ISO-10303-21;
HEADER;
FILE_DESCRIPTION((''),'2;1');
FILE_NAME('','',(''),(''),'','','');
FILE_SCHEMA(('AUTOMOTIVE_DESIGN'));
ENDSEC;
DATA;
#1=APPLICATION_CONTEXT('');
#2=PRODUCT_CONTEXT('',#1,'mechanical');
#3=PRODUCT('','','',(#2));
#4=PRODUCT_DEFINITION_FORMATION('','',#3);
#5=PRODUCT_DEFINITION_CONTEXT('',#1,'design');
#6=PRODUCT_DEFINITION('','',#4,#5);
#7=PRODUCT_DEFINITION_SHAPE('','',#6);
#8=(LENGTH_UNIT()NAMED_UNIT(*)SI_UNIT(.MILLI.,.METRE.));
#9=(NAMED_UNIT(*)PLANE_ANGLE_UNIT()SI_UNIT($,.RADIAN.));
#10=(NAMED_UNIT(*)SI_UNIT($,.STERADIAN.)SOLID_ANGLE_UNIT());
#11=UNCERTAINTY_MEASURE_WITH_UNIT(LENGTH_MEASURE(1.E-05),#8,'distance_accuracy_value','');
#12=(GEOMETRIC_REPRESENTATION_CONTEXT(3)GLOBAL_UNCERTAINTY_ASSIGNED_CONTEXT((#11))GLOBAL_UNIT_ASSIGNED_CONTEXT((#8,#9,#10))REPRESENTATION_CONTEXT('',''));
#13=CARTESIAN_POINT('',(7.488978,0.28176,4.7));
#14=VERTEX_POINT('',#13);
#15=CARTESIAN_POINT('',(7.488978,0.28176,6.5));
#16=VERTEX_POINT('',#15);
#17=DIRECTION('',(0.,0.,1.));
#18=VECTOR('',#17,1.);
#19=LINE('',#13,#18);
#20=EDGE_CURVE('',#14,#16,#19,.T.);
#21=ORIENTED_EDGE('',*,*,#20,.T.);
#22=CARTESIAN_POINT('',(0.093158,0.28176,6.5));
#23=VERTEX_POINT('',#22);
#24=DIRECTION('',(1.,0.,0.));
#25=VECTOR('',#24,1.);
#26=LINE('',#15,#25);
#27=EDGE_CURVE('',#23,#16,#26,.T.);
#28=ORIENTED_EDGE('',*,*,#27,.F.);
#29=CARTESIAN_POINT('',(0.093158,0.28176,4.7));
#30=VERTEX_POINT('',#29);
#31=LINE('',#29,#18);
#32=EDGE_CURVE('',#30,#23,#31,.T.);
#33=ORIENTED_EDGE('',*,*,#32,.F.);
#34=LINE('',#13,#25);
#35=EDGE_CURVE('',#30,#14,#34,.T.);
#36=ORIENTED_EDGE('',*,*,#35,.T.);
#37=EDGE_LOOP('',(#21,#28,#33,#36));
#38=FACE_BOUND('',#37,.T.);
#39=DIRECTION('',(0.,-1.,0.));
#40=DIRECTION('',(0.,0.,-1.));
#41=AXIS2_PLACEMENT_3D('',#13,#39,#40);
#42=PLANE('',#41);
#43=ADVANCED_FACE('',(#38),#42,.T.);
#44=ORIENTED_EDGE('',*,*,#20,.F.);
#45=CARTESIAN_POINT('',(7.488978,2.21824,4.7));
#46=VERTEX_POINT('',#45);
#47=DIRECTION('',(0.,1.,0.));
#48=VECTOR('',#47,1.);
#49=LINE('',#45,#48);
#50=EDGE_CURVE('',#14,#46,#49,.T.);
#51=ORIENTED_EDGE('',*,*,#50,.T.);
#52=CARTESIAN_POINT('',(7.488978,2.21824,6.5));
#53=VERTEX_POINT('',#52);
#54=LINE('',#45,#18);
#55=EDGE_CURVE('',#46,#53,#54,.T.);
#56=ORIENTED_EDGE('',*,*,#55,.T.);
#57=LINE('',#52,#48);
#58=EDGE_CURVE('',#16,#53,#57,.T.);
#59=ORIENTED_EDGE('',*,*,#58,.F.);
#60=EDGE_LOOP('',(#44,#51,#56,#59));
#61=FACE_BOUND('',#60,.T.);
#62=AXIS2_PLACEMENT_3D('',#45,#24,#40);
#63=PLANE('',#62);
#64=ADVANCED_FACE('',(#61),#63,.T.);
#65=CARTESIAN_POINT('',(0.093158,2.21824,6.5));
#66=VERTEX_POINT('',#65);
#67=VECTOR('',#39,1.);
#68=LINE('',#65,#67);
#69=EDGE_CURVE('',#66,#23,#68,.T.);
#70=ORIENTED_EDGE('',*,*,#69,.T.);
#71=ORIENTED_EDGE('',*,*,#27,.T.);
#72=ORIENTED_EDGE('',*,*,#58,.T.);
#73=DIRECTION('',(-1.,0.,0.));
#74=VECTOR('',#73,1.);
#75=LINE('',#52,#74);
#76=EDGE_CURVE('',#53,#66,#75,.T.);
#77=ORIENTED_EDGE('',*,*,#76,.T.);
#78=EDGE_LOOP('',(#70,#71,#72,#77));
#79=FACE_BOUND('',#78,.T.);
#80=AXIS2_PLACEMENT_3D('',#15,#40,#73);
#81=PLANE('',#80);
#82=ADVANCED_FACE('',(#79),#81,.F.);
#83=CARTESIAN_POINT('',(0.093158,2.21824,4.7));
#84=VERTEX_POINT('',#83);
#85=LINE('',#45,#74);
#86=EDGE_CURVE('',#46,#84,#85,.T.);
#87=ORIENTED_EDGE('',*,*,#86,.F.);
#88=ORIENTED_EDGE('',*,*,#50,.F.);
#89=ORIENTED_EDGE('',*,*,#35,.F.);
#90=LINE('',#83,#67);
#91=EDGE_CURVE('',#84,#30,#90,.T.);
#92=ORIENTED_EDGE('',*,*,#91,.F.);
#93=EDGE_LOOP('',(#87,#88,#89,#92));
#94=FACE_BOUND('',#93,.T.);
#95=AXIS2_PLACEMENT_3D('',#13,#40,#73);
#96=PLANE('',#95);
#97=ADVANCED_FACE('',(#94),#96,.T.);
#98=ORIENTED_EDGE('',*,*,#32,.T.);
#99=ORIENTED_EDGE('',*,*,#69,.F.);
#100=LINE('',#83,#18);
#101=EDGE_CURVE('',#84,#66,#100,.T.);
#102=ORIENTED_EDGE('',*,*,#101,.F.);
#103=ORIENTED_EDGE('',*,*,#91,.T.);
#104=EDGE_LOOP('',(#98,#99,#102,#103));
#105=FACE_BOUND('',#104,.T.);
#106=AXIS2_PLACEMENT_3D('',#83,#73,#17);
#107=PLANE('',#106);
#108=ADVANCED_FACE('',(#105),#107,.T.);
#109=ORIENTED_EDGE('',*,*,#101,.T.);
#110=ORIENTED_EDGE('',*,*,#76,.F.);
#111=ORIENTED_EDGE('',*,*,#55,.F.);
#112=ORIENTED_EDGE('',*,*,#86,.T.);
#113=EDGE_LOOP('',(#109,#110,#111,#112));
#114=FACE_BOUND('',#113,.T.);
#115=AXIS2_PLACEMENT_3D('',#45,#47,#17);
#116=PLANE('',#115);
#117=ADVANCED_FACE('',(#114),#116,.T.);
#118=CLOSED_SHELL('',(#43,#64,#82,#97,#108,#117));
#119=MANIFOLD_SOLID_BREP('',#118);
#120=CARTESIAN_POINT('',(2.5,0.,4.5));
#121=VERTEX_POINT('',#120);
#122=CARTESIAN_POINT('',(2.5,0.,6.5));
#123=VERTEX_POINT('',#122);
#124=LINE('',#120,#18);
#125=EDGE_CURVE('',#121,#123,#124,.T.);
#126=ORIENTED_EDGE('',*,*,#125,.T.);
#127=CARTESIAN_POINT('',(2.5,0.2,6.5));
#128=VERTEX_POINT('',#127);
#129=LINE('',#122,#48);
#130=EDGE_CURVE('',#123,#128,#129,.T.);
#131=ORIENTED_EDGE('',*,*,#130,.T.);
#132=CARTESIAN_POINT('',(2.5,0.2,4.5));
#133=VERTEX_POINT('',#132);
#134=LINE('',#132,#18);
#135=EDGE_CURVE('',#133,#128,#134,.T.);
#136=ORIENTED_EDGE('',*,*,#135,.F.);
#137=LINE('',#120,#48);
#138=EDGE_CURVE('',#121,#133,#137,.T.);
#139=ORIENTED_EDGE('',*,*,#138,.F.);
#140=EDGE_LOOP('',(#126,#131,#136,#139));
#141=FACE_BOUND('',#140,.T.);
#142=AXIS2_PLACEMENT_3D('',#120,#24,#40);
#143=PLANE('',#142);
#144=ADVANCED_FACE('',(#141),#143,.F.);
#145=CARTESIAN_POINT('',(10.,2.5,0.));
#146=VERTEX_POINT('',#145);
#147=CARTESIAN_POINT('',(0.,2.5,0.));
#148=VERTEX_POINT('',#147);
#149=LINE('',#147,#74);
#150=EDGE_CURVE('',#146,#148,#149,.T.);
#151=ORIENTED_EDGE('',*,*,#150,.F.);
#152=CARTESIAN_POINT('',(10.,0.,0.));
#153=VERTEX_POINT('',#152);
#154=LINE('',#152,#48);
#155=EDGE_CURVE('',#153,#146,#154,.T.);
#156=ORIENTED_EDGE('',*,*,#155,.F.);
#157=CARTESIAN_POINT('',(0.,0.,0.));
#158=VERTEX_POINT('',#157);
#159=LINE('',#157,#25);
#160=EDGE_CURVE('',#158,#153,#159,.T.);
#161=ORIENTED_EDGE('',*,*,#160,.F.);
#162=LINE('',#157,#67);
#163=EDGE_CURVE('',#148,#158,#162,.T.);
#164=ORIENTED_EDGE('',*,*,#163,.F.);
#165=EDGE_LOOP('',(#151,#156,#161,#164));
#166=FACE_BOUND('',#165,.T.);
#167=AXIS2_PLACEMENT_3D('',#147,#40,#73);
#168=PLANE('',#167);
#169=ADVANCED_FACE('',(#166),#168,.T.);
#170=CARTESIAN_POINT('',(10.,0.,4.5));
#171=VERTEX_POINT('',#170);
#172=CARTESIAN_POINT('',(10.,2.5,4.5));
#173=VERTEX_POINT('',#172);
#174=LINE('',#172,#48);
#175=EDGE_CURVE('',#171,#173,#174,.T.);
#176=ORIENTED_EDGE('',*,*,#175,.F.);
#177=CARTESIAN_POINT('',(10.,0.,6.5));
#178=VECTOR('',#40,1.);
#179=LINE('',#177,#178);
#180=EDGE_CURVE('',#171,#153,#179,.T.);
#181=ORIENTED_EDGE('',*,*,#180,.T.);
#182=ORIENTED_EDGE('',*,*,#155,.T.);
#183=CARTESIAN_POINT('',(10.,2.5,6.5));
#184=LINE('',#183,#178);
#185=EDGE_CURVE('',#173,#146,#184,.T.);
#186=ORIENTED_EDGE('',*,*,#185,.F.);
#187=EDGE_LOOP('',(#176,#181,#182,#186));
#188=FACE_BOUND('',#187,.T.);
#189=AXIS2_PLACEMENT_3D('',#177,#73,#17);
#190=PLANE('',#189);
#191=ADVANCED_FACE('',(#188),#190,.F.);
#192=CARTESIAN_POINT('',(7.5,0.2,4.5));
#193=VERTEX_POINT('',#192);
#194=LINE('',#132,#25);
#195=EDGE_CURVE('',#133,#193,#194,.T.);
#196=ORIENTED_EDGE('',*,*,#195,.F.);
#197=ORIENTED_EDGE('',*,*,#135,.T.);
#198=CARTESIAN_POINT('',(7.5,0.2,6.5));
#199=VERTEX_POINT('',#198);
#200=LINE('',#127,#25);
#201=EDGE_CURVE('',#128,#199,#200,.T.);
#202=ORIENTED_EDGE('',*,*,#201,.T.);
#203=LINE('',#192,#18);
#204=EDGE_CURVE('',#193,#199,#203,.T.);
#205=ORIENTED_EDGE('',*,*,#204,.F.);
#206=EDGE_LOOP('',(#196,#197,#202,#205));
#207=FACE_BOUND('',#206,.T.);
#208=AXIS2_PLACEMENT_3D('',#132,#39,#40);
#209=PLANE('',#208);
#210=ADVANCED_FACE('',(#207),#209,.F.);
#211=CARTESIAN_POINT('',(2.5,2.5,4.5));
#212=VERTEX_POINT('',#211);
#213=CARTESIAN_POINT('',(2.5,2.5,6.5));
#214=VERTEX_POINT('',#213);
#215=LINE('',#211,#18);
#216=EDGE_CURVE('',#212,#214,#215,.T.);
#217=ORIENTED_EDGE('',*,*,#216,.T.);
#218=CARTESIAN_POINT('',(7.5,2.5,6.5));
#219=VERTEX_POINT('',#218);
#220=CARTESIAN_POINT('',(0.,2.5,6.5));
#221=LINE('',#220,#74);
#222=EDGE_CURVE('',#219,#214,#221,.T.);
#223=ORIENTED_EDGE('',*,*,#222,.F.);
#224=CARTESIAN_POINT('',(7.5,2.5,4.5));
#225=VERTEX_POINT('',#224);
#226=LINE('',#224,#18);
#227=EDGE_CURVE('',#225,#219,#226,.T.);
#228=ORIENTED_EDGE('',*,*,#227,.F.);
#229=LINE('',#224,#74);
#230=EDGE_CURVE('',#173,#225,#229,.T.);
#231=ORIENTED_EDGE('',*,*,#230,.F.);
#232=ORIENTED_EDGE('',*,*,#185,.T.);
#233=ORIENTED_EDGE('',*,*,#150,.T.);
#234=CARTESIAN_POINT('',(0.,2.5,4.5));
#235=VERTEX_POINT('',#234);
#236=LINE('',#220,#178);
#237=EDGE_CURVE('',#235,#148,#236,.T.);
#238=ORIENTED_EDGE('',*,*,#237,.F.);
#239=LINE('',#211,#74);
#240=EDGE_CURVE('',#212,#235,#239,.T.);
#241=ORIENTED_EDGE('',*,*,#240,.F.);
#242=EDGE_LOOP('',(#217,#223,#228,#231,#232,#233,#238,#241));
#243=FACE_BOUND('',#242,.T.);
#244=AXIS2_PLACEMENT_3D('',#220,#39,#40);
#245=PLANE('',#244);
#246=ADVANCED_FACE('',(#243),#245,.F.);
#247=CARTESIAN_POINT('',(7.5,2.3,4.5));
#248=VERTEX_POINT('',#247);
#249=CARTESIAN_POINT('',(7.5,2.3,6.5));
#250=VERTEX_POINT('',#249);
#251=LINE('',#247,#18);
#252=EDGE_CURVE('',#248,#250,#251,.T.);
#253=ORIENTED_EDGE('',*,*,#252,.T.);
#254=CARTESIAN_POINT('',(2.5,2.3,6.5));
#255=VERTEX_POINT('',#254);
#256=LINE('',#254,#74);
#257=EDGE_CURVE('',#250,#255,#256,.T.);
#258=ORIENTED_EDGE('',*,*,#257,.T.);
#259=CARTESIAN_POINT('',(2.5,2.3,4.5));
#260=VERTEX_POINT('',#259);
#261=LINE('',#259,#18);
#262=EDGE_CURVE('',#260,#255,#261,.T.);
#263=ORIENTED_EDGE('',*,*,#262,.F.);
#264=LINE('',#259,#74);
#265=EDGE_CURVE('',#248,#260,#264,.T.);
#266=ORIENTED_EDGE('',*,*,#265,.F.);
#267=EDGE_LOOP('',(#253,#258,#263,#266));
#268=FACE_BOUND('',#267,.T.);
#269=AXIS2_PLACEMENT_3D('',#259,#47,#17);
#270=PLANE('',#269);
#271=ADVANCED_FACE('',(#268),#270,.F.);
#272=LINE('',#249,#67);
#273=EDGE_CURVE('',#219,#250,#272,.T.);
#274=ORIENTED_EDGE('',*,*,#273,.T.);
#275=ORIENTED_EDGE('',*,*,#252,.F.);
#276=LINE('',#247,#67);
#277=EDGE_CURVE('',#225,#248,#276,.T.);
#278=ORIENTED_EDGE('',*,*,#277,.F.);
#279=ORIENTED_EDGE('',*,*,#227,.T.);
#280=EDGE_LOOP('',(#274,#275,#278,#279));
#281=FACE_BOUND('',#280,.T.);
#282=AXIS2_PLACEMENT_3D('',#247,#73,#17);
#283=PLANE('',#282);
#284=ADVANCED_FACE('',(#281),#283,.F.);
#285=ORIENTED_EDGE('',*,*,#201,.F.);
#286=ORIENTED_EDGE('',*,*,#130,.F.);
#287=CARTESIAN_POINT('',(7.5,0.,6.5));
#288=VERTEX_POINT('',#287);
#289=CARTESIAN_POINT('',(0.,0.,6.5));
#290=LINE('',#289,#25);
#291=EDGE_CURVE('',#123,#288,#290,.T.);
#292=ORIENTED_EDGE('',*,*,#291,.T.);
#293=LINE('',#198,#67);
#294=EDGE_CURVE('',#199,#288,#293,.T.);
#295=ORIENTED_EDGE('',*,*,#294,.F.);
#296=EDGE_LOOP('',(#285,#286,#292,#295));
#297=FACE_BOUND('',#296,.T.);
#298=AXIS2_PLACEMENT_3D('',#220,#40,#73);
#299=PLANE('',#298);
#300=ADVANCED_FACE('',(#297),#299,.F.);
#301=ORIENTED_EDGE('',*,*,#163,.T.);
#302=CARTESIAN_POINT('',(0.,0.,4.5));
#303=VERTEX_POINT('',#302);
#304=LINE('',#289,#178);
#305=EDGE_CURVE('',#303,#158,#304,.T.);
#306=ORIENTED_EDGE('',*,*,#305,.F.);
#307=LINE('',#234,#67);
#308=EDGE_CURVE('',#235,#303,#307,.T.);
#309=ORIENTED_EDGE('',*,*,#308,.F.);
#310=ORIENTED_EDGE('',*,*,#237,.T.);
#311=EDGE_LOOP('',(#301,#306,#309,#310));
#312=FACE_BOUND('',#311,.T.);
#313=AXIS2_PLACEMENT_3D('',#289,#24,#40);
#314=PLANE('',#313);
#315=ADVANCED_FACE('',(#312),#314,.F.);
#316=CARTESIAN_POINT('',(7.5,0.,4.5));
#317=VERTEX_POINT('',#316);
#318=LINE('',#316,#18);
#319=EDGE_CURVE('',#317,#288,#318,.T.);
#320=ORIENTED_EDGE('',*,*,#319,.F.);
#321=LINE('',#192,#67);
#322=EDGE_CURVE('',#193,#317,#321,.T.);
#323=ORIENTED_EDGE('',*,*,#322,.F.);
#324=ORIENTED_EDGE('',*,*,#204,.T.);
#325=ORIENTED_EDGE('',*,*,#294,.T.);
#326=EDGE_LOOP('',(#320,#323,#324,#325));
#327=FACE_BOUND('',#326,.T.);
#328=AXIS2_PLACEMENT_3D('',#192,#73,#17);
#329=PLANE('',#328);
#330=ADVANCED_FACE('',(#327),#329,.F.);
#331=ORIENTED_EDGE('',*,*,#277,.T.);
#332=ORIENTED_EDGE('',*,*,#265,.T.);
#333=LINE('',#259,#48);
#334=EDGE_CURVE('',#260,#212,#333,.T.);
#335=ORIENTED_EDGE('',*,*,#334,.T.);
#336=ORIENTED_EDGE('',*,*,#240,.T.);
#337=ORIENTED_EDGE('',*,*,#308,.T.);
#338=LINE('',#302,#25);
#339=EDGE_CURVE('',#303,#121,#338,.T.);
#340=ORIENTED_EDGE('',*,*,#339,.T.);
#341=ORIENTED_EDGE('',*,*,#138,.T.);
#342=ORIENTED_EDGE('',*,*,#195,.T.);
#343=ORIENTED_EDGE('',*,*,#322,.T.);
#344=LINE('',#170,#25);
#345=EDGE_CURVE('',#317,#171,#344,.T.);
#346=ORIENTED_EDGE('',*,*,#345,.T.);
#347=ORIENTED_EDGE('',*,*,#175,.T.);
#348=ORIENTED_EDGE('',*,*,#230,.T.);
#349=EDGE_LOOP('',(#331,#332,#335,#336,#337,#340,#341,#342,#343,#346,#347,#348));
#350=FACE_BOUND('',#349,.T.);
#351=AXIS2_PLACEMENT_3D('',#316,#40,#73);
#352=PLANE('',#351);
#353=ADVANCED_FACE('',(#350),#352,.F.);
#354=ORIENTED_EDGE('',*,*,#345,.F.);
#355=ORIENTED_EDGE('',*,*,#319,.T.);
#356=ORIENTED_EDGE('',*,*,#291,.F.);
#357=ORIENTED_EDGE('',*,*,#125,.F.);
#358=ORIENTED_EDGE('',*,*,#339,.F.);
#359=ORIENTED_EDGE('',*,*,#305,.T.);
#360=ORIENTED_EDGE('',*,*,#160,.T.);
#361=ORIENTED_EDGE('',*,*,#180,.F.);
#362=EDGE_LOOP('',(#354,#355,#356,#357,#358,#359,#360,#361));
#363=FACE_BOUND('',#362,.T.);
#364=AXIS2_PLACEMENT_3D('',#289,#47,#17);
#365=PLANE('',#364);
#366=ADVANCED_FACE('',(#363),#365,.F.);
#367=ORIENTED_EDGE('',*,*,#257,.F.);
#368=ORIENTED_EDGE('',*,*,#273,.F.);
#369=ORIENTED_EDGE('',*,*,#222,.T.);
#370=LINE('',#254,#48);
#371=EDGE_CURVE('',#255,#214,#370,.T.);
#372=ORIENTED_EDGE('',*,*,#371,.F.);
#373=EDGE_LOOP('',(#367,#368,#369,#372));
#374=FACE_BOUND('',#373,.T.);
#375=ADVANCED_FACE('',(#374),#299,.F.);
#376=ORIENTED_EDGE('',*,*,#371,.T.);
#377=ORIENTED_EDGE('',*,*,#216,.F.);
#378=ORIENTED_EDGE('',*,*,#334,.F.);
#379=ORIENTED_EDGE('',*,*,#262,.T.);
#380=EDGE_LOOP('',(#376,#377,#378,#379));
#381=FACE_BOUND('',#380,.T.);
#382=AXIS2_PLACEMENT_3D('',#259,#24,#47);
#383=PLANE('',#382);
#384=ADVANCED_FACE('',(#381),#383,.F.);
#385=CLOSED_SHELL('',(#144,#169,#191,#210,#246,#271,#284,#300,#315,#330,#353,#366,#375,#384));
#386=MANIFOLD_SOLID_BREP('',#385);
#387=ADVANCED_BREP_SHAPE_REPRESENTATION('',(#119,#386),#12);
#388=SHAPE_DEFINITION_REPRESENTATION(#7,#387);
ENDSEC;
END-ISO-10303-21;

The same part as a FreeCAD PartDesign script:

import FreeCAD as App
import Part
import Sketcher

V = App.Vector
Q = App.Units.Quantity

doc = App.newDocument("Part")
body = doc.addObject("PartDesign::Body", "Body")

sketch1 = body.newObject("Sketcher::SketchObject", "Sketch")
sketch1.AttachmentSupport = (doc.getObject("XY_Plane"), [""])
sketch1.MapMode = "FlatFace"
sketch1.addGeometry([
    Part.LineSegment(V(0, 2.5, 0), V(0, 0, 0)),
    Part.LineSegment(V(0, 0, 0), V(10, 0, 0)),
    Part.LineSegment(V(10, 0, 0), V(10, 2.5, 0)),
    Part.LineSegment(V(10, 2.5, 0), V(0, 2.5, 0)),
], False)
sketch1.addConstraint([
    Sketcher.Constraint("Coincident", 0, 2, 1, 1),
    Sketcher.Constraint("Coincident", 1, 2, 2, 1),
    Sketcher.Constraint("Coincident", 2, 2, 3, 1),
    Sketcher.Constraint("Coincident", 3, 2, 0, 1),
    Sketcher.Constraint("Vertical", 0),
    Sketcher.Constraint("Horizontal", 1),
    Sketcher.Constraint("Vertical", 2),
    Sketcher.Constraint("Horizontal", 3),
    Sketcher.Constraint("Coincident", 0, 2, -1, 1),
    Sketcher.Constraint("DistanceX", 1, 1, 1, 2, Q("10 mm")),
    Sketcher.Constraint("DistanceY", 0, 2, 0, 1, Q("2.5 mm")),
])
pad1 = body.newObject("PartDesign::Pad", "Pad")
pad1.Profile = sketch1
pad1.Length = 6.5

sketch2 = body.newObject("Sketcher::SketchObject", "Sketch001")
sketch2.AttachmentSupport = (doc.getObject("XY_Plane"), [""])
sketch2.MapMode = "FlatFace"
sketch2.AttachmentOffset = App.Placement(V(0, 0, 6.5), App.Rotation())
sketch2.addGeometry([
    Part.LineSegment(V(7.5, 2.3, 0), V(2.5, 2.3, 0)),
    Part.LineSegment(V(2.5, 2.3, 0), V(2.5, 2.5, 0)),
    Part.LineSegment(V(2.5, 2.5, 0), V(0, 2.5, 0)),
    Part.LineSegment(V(0, 2.5, 0), V(0, 0, 0)),
    Part.LineSegment(V(0, 0, 0), V(2.5, 0, 0)),
    Part.LineSegment(V(2.5, 0, 0), V(2.5, 0.2, 0)),
    Part.LineSegment(V(2.5, 0.2, 0), V(7.5, 0.2, 0)),
    Part.LineSegment(V(7.5, 0.2, 0), V(7.5, 0, 0)),
    Part.LineSegment(V(7.5, 0, 0), V(10, 0, 0)),
    Part.LineSegment(V(10, 0, 0), V(10, 2.5, 0)),
    Part.LineSegment(V(10, 2.5, 0), V(7.5, 2.5, 0)),
    Part.LineSegment(V(7.5, 2.5, 0), V(7.5, 2.3, 0)),
], False)
sketch2.addConstraint([
    Sketcher.Constraint("Coincident", 0, 2, 1, 1),
    Sketcher.Constraint("Coincident", 1, 2, 2, 1),
    Sketcher.Constraint("Coincident", 2, 2, 3, 1),
    Sketcher.Constraint("Coincident", 3, 2, 4, 1),
    Sketcher.Constraint("Coincident", 4, 2, 5, 1),
    Sketcher.Constraint("Coincident", 5, 2, 6, 1),
    Sketcher.Constraint("Coincident", 6, 2, 7, 1),
    Sketcher.Constraint("Coincident", 7, 2, 8, 1),
    Sketcher.Constraint("Coincident", 8, 2, 9, 1),
    Sketcher.Constraint("Coincident", 9, 2, 10, 1),
    Sketcher.Constraint("Coincident", 10, 2, 11, 1),
    Sketcher.Constraint("Coincident", 11, 2, 0, 1),
    Sketcher.Constraint("Horizontal", 0),
    Sketcher.Constraint("Vertical", 1),
    Sketcher.Constraint("Horizontal", 2),
    Sketcher.Constraint("Vertical", 3),
    Sketcher.Constraint("Horizontal", 4),
    Sketcher.Constraint("Vertical", 5),
    Sketcher.Constraint("Horizontal", 6),
    Sketcher.Constraint("Vertical", 7),
    Sketcher.Constraint("Horizontal", 8),
    Sketcher.Constraint("Vertical", 9),
    Sketcher.Constraint("Horizontal", 10),
    Sketcher.Constraint("Vertical", 11),
    Sketcher.Constraint("Coincident", 3, 2, -1, 1),
    Sketcher.Constraint("PointOnObject", 7, 2, -1),
    Sketcher.Constraint("Horizontal", 2, 2, 9, 2),
    Sketcher.Constraint("Vertical", 1, 2, 4, 2),
    Sketcher.Constraint("Vertical", 7, 2, 10, 2),
    Sketcher.Constraint("Equal", 4, 8),
    Sketcher.Constraint("Equal", 10, 3),
    Sketcher.Constraint("Equal", 1, 5),
    Sketcher.Constraint("DistanceX", 0, 2, 0, 1, Q("5 mm")),
    Sketcher.Constraint("DistanceX", 2, 2, 2, 1, Q("2.5 mm")),
    Sketcher.Constraint("DistanceY", 1, 1, 1, 2, Q("0.2 mm")),
])
pocket1 = body.newObject("PartDesign::Pocket", "Pocket")
pocket1.Profile = sketch2
pocket1.Length = 2
body2 = doc.addObject("PartDesign::Body", "Body001")

sketch3 = body2.newObject("Sketcher::SketchObject", "Sketch002")
sketch3.AttachmentSupport = (doc.getObject("XY_Plane001"), [""])
sketch3.MapMode = "FlatFace"
sketch3.AttachmentOffset = App.Placement(V(0, 0, 6.5), App.Rotation())
sketch3.addGeometry([
    Part.LineSegment(V(0.093158, 2.21824, 0), V(0.093158, 0.28176, 0)),
    Part.LineSegment(V(0.093158, 0.28176, 0), V(7.488978, 0.28176, 0)),
    Part.LineSegment(V(7.488978, 0.28176, 0), V(7.488978, 2.21824, 0)),
    Part.LineSegment(V(7.488978, 2.21824, 0), V(0.093158, 2.21824, 0)),
], False)
sketch3.addConstraint([
    Sketcher.Constraint("Coincident", 0, 2, 1, 1),
    Sketcher.Constraint("Coincident", 1, 2, 2, 1),
    Sketcher.Constraint("Coincident", 2, 2, 3, 1),
    Sketcher.Constraint("Coincident", 3, 2, 0, 1),
    Sketcher.Constraint("Vertical", 0),
    Sketcher.Constraint("Horizontal", 1),
    Sketcher.Constraint("Vertical", 2),
    Sketcher.Constraint("Horizontal", 3),
    Sketcher.Constraint("DistanceX", 1, 1, 1, 2, Q("7.39582 mm")),
    Sketcher.Constraint("DistanceY", 0, 2, 0, 1, Q("1.93648 mm")),
    Sketcher.Constraint("DistanceY", -1, 1, 0, 2, Q("0.28176 mm")),
    Sketcher.Constraint("DistanceX", -1, 1, 0, 2, Q("0.093158 mm")),
])
pad2 = body2.newObject("PartDesign::Pad", "Pad001")
pad2.Profile = sketch3
pad2.Length = 1.8
pad2.Reversed = True

doc.recompute()
